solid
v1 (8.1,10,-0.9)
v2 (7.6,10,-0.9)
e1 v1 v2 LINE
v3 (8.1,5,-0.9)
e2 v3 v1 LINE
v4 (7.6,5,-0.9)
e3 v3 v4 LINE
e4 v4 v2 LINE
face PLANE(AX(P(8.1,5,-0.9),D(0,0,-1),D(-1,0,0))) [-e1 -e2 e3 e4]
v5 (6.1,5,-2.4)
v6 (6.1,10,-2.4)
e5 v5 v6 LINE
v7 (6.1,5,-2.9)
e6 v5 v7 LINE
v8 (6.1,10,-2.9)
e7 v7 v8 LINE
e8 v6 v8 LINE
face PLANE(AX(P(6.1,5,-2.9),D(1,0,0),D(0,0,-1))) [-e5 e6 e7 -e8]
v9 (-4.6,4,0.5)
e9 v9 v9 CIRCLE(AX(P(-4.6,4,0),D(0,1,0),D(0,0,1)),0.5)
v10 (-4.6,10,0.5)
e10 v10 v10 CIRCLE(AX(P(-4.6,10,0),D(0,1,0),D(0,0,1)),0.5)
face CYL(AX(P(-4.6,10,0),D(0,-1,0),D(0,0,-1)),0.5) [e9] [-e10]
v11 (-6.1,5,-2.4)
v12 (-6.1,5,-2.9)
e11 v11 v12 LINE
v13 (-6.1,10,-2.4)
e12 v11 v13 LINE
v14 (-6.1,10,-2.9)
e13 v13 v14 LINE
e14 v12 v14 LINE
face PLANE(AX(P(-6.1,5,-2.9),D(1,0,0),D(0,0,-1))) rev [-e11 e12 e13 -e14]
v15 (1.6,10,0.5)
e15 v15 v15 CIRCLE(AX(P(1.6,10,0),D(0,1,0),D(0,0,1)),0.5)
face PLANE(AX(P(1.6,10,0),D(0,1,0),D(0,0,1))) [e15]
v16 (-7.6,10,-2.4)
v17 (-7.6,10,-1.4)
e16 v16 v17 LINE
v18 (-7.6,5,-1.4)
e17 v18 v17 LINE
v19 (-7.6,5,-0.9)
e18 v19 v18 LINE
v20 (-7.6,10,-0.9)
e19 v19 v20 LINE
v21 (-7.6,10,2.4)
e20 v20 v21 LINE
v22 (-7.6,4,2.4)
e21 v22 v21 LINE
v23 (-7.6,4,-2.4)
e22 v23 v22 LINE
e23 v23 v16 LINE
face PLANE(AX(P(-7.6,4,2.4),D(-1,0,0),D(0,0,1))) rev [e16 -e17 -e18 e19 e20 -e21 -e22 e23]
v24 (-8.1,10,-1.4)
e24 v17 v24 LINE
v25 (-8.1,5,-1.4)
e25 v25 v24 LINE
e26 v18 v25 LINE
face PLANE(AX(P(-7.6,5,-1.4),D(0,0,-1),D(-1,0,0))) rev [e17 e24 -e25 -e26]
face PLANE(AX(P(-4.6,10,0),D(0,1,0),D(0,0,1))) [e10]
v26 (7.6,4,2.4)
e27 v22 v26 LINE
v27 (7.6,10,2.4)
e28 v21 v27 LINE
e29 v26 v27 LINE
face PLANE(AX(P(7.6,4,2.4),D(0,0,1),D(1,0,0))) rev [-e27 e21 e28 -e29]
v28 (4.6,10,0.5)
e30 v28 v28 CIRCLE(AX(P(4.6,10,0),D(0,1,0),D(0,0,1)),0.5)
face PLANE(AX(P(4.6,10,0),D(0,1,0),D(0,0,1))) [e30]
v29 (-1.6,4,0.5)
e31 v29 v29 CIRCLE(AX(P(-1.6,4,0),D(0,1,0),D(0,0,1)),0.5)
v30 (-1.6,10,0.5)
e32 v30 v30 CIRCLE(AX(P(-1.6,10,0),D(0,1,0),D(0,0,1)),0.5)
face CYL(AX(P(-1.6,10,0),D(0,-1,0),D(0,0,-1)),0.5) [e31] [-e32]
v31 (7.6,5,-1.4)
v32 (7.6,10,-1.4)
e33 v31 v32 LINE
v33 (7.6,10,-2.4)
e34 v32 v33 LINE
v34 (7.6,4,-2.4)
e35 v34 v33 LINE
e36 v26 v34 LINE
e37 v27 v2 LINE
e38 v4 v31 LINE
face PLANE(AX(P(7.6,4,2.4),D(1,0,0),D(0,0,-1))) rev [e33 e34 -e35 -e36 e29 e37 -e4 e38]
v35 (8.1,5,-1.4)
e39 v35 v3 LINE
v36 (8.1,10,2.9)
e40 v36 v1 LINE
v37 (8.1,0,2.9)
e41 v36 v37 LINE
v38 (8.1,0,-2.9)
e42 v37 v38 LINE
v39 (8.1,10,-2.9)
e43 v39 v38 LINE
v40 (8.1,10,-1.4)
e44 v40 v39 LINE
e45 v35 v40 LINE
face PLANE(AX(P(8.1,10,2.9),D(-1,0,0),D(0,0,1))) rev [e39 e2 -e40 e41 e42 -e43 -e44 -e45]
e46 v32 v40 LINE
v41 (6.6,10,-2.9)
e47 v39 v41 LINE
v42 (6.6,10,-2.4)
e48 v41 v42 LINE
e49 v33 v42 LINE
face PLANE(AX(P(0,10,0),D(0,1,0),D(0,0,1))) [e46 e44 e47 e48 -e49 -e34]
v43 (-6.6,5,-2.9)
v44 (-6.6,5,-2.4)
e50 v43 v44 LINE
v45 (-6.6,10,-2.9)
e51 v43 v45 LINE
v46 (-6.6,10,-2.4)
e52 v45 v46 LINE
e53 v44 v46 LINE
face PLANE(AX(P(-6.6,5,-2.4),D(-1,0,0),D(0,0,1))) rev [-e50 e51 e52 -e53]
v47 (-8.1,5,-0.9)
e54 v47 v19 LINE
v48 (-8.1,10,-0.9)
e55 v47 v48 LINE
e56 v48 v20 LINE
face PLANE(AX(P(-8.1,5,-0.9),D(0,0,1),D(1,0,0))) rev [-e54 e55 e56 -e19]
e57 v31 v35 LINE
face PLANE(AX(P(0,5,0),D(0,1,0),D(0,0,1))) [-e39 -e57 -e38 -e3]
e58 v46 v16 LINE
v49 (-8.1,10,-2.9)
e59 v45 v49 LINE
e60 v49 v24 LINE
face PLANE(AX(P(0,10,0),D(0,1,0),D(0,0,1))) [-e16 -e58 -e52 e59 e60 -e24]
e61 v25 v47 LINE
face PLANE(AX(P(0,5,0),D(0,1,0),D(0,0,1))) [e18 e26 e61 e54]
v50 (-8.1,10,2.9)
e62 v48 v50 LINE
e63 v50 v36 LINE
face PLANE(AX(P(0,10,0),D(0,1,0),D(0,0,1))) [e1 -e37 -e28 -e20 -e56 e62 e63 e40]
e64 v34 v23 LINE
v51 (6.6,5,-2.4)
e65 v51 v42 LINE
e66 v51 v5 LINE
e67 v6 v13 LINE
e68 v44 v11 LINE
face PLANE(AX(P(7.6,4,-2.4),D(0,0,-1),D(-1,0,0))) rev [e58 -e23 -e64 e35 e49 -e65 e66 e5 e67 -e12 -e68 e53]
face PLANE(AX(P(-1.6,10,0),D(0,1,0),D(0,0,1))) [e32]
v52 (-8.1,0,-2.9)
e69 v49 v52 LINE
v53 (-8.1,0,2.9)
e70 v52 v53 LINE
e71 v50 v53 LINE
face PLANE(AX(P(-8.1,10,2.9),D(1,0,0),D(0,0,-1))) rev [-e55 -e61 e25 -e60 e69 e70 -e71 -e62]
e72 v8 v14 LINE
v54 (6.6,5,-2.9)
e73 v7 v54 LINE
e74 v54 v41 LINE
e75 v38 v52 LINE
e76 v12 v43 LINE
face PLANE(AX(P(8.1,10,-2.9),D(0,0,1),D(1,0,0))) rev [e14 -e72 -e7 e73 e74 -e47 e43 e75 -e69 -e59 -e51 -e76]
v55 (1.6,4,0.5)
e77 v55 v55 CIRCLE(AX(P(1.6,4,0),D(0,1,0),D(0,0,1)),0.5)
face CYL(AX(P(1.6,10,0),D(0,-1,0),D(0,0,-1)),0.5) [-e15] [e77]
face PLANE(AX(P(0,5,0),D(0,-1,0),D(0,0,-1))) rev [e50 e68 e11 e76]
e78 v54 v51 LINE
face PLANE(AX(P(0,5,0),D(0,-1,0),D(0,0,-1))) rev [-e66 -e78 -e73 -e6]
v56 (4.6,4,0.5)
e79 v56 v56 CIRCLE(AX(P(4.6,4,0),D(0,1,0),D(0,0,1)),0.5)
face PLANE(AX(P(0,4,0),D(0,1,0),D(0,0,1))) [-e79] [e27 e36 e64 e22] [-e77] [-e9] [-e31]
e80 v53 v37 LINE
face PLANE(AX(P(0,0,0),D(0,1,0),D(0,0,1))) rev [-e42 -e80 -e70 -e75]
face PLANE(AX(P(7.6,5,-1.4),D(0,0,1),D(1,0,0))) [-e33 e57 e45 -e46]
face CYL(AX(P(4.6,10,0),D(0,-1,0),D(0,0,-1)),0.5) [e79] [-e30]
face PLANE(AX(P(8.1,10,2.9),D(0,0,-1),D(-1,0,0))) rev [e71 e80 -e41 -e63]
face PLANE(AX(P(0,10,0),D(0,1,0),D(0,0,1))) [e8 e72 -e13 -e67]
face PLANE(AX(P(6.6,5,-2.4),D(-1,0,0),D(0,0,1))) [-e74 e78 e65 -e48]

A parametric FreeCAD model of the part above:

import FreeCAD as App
import Part
import Sketcher
from FreeCAD import Vector
Q = App.Units.Quantity

doc = App.newDocument("Part")
body = doc.addObject("PartDesign::Body", "Body")

sketch1 = body.newObject("Sketcher::SketchObject", "Sketch")
sketch1.AttachmentSupport = (doc.getObject("XZ_Plane"), [""])
sketch1.MapMode = "FlatFace"
sketch1.addGeometry(Part.LineSegment(Vector(-8, -3, 0), Vector(-8, 3, 0)), False)
sketch1.addGeometry(Part.LineSegment(Vector(-8, 3, 0), Vector(8, 3, 0)), False)
sketch1.addGeometry(Part.LineSegment(Vector(8, 3, 0), Vector(8, -3, 0)), False)
sketch1.addGeometry(Part.LineSegment(Vector(8, -3, 0), Vector(-8, -3, 0)), False)
sketch1.addConstraint(Sketcher.Constraint("Coincident", 0, 2, 1, 1))
sketch1.addConstraint(Sketcher.Constraint("Coincident", 1, 2, 2, 1))
sketch1.addConstraint(Sketcher.Constraint("Coincident", 2, 2, 3, 1))
sketch1.addConstraint(Sketcher.Constraint("Coincident", 3, 2, 0, 1))
sketch1.addConstraint(Sketcher.Constraint("Vertical", 0))
sketch1.addConstraint(Sketcher.Constraint("Horizontal", 1))
sketch1.addConstraint(Sketcher.Constraint("Vertical", 2))
sketch1.addConstraint(Sketcher.Constraint("Horizontal", 3))
sketch1.addConstraint(Sketcher.Constraint("Symmetric", 0, 2, 2, 2, -1, 1))
sketch1.addConstraint(Sketcher.Constraint("DistanceX", 1, 1, 1, 2, Q("16.2 mm")))
sketch1.addConstraint(Sketcher.Constraint("DistanceY", 0, 1, 0, 2, Q("5.8 mm")))
pad1 = body.newObject("PartDesign::Pad", "Pad")
pad1.Profile = sketch1
pad1.Length = 10
pad1.Reversed = True

sketch2 = body.newObject("Sketcher::SketchObject", "Sketch001")
sketch2.AttachmentSupport = (doc.getObject("XZ_Plane"), [""])
sketch2.MapMode = "FlatFace"
sketch2.AttachmentOffset = App.Placement(Vector(0, 0, -10), App.Rotation())
sketch2.addGeometry(Part.LineSegment(Vector(-7.6, -2.4, 0), Vector(-7.6, 2.4, 0)), False)
sketch2.addGeometry(Part.LineSegment(Vector(-7.6, 2.4, 0), Vector(7.6, 2.4, 0)), False)
sketch2.addGeometry(Part.LineSegment(Vector(7.6, 2.4, 0), Vector(7.6, -2.4, 0)), False)
sketch2.addGeometry(Part.LineSegment(Vector(7.6, -2.4, 0), Vector(-7.6, -2.4, 0)), False)
sketch2.addConstraint(Sketcher.Constraint("Coincident", 0, 2, 1, 1))
sketch2.addConstraint(Sketcher.Constraint("Coincident", 1, 2, 2, 1))
sketch2.addConstraint(Sketcher.Constraint("Coincident", 2, 2, 3, 1))
sketch2.addConstraint(Sketcher.Constraint("Coincident", 3, 2, 0, 1))
sketch2.addConstraint(Sketcher.Constraint("Vertical", 0))
sketch2.addConstraint(Sketcher.Constraint("Horizontal", 1))
sketch2.addConstraint(Sketcher.Constraint("Vertical", 2))
sketch2.addConstraint(Sketcher.Constraint("Horizontal", 3))
sketch2.addConstraint(Sketcher.Constraint("Symmetric", 0, 2, 2, 2, -1, 1))
sketch2.addConstraint(Sketcher.Constraint("DistanceX", 1, 1, 1, 2, Q("15.2 mm")))
sketch2.addConstraint(Sketcher.Constraint("DistanceY", 0, 1, 0, 2, Q("4.8 mm")))
pocket1 = body.newObject("PartDesign::Pocket", "Pocket")
pocket1.Profile = sketch2
pocket1.Length = 6
pocket1.Reversed = True

sketch3 = body.newObject("Sketcher::SketchObject", "Sketch002")
sketch3.AttachmentSupport = (doc.getObject("XZ_Plane"), [""])
sketch3.MapMode = "FlatFace"
sketch3.AttachmentOffset = App.Placement(Vector(0, 0, -4), App.Rotation())
sketch3.addGeometry(Part.Circle(Vector(-4.6, 0, 0), Vector(0, 0, 1), 0.5), False)
sketch3.addGeometry(Part.Circle(Vector(-1.6, 0, 0), Vector(0, 0, 1), 0.5), False)
sketch3.addGeometry(Part.Circle(Vector(1.6, 0, 0), Vector(0, 0, 1), 0.5), False)
sketch3.addGeometry(Part.Circle(Vector(4.6, 0, 0), Vector(0, 0, 1), 0.5), False)
sketch3.addConstraint(Sketcher.Constraint("Equal", 0, 1))
sketch3.addConstraint(Sketcher.Constraint("Equal", 1, 2))
sketch3.addConstraint(Sketcher.Constraint("Equal", 2, 3))
sketch3.addConstraint(Sketcher.Constraint("Symmetric", 1, 3, 2, 3, -1, 1))
sketch3.addConstraint(Sketcher.Constraint("Symmetric", 0, 3, 3, 3, -1, 1))
sketch3.addConstraint(Sketcher.Constraint("PointOnObject", 0, 3, -1))
sketch3.addConstraint(Sketcher.Constraint("PointOnObject", 1, 3, -1))
sketch3.addConstraint(Sketcher.Constraint("Diameter", 0, Q("1 mm")))
sketch3.addConstraint(Sketcher.Constraint("DistanceX", 0, 3, 1, 3, Q("3 mm")))
sketch3.addConstraint(Sketcher.Constraint("DistanceX", 0, 3, -1, 1, Q("4.6 mm")))
pad2 = body.newObject("PartDesign::Pad", "Pad001")
pad2.Profile = sketch3
pad2.Length = 6
pad2.Reversed = True

sketch4 = body.newObject("Sketcher::SketchObject", "Sketch003")
sketch4.AttachmentSupport = (doc.getObject("XZ_Plane"), [""])
sketch4.MapMode = "FlatFace"
sketch4.AttachmentOffset = App.Placement(Vector(0, 0, -10), App.Rotation())
sketch4.addGeometry(Part.LineSegment(Vector(-6.6, -2.9, 0), Vector(-6.6, -2.4, 0)), False)
sketch4.addGeometry(Part.LineSegment(Vector(-6.6, -2.4, 0), Vector(-6.1, -2.4, 0)), False)
sketch4.addGeometry(Part.LineSegment(Vector(-6.1, -2.4, 0), Vector(-6.1, -2.9, 0)), False)
sketch4.addGeometry(Part.LineSegment(Vector(-6.1, -2.9, 0), Vector(-6.6, -2.9, 0)), False)
sketch4.addGeometry(Part.LineSegment(Vector(-8.1, -1.4, 0), Vector(-8.1, -0.9, 0)), False)
sketch4.addGeometry(Part.LineSegment(Vector(-8.1, -0.9, 0), Vector(-7.6, -0.9, 0)), False)
sketch4.addGeometry(Part.LineSegment(Vector(-7.6, -0.9, 0), Vector(-7.6, -1.4, 0)), False)
sketch4.addGeometry(Part.LineSegment(Vector(-7.6, -1.4, 0), Vector(-8.1, -1.4, 0)), False)
sketch4.addConstraint(Sketcher.Constraint("Coincident", 0, 2, 1, 1))
sketch4.addConstraint(Sketcher.Constraint("Coincident", 1, 2, 2, 1))
sketch4.addConstraint(Sketcher.Constraint("Coincident", 2, 2, 3, 1))
sketch4.addConstraint(Sketcher.Constraint("Coincident", 3, 2, 0, 1))
sketch4.addConstraint(Sketcher.Constraint("Coincident", 4, 2, 5, 1))
sketch4.addConstraint(Sketcher.Constraint("Coincident", 5, 2, 6, 1))
sketch4.addConstraint(Sketcher.Constraint("Coincident", 6, 2, 7, 1))
sketch4.addConstraint(Sketcher.Constraint("Coincident", 7, 2, 4, 1))
sketch4.addConstraint(Sketcher.Constraint("Vertical", 0))
sketch4.addConstraint(Sketcher.Constraint("Horizontal", 1))
sketch4.addConstraint(Sketcher.Constraint("Vertical", 2))
sketch4.addConstraint(Sketcher.Constraint("Horizontal", 3))
sketch4.addConstraint(Sketcher.Constraint("Vertical", 4))
sketch4.addConstraint(Sketcher.Constraint("Horizontal", 5))
sketch4.addConstraint(Sketcher.Constraint("Vertical", 6))
sketch4.addConstraint(Sketcher.Constraint("Horizontal", 7))
sketch4.addConstraint(Sketcher.Constraint("Equal", 3, 5))
sketch4.addConstraint(Sketcher.Constraint("Equal", 7, 0))
sketch4.addConstraint(Sketcher.Constraint("Equal", 2, 4))
sketch4.addConstraint(Sketcher.Constraint("DistanceX", 1, 1, 1, 2, Q("0.5 mm")))
sketch4.addConstraint(Sketcher.Constraint("DistanceX", 4, 2, 1, 2, Q("2 mm")))
sketch4.addConstraint(Sketcher.Constraint("DistanceY", 3, 2, 4, 2, Q("2 mm")))
sketch4.addConstraint(Sketcher.Constraint("DistanceX", 0, 2, -1, 1, Q("6.6 mm")))
sketch4.addConstraint(Sketcher.Constraint("DistanceY", 0, 2, -1, 1, Q("2.4 mm")))
pocket2 = body.newObject("PartDesign::Pocket", "Pocket001")
pocket2.Profile = sketch4
pocket2.Length = 5
pocket2.Reversed = True
doc.recompute()

mirrored = body.newObject("PartDesign::Mirrored", "Mirrored")
mirrored.Originals = [pocket2]
mirrored.MirrorPlane = (doc.getObject("YZ_Plane"), [""])
body.Tip = mirrored

doc.recompute()
